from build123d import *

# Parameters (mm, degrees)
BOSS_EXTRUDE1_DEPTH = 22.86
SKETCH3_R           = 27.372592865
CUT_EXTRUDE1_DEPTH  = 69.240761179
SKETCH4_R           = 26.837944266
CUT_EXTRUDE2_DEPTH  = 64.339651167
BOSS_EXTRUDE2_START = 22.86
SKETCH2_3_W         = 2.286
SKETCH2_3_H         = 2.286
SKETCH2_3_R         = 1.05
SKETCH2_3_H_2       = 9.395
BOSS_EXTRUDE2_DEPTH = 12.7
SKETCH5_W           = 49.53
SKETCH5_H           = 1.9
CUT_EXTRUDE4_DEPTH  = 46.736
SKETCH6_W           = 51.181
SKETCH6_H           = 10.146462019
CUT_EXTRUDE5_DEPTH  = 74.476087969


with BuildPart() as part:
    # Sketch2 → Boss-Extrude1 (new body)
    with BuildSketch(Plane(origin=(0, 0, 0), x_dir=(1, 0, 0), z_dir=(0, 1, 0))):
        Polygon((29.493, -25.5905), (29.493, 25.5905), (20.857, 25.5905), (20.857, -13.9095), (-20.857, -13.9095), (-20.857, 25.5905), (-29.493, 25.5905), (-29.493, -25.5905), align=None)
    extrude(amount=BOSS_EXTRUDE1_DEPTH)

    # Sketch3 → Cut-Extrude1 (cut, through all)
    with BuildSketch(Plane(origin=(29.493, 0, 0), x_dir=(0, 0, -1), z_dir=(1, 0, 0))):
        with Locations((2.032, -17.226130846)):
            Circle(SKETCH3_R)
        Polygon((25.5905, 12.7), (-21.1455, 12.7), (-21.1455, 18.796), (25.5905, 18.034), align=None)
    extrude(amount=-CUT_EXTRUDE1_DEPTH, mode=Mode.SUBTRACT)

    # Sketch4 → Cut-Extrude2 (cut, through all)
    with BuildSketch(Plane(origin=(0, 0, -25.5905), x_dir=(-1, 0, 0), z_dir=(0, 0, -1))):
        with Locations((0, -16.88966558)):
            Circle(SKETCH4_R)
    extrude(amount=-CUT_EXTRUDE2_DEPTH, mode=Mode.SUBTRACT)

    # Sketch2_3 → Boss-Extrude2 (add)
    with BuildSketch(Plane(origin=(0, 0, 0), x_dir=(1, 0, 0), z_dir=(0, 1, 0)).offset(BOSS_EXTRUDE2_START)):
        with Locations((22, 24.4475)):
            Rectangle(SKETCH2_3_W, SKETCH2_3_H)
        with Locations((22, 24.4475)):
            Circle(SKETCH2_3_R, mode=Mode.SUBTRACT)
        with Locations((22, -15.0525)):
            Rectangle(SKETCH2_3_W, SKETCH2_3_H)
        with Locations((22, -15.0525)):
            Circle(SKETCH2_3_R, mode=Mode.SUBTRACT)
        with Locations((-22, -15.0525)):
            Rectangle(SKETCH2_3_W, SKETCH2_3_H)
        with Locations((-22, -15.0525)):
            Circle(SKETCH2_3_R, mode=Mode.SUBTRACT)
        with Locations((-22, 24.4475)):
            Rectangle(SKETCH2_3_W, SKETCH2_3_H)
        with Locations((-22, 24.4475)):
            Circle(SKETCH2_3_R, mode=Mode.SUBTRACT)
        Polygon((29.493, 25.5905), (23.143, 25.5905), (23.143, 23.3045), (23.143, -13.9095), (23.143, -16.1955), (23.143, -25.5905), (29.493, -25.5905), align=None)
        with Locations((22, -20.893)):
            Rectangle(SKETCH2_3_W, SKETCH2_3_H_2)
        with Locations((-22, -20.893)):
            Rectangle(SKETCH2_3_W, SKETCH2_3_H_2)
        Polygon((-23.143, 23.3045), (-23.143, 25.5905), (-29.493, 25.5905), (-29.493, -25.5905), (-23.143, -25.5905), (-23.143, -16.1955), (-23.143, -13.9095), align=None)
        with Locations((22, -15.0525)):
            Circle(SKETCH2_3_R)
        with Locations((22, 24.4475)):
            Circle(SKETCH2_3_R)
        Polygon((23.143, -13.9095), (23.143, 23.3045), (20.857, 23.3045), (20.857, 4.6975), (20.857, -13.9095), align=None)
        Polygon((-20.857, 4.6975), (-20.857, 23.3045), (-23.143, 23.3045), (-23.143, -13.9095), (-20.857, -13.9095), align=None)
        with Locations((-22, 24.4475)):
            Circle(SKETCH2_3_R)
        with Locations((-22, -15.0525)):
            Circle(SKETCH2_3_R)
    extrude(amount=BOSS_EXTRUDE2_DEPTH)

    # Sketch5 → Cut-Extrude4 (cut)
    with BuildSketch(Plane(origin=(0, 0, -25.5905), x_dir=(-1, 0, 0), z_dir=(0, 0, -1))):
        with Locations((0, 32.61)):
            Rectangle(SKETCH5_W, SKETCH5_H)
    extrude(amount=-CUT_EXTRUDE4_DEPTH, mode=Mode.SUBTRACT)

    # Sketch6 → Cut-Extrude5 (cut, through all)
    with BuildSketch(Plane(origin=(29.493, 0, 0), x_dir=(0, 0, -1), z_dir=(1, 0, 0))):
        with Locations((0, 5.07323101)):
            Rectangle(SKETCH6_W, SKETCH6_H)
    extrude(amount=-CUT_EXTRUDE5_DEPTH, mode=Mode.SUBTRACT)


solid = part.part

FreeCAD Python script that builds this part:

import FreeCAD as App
import Part
import Sketcher
from FreeCAD import Vector
Q = App.Units.Quantity


def add_polygon(sketch, points):
    """Adds a closed chain of lines whose ends are joined by coincident constraints."""
    first, n = sketch.GeometryCount, len(points)
    for a, b in zip(points, points[1:] + points[:1]):
        sketch.addGeometry(Part.LineSegment(App.Vector(*a, 0), App.Vector(*b, 0)), False)
    for i in range(n):
        sketch.addConstraint(Sketcher.Constraint("Coincident", first + i, 2, first + (i + 1) % n, 1))

doc = App.newDocument("Part")
body = doc.addObject("PartDesign::Body", "Body")

sketch1 = body.newObject("Sketcher::SketchObject", "Sketch")
sketch1.AttachmentSupport = (doc.getObject("XZ_Plane"), [""])
sketch1.MapMode = "FlatFace"
add_polygon(sketch1, [(29, 26), (29, -26), (21, -26), (21, 14), (-21, 14), (-21, -26), (-29, -26), (-29, 26)])
sketch1.addConstraint(Sketcher.Constraint("Vertical", 0))
sketch1.addConstraint(Sketcher.Constraint("Horizontal", 1))
sketch1.addConstraint(Sketcher.Constraint("Vertical", 2))
sketch1.addConstraint(Sketcher.Constraint("Horizontal", 3))
sketch1.addConstraint(Sketcher.Constraint("Vertical", 4))
sketch1.addConstraint(Sketcher.Constraint("Horizontal", 5))
sketch1.addConstraint(Sketcher.Constraint("Vertical", 6))
sketch1.addConstraint(Sketcher.Constraint("Horizontal", 7))
sketch1.addConstraint(Sketcher.Constraint("Symmetric", 0, 2, 6, 2, -1, 1))
sketch1.addConstraint(Sketcher.Constraint("Symmetric", 1, 2, 4, 2, -2))
sketch1.addConstraint(Sketcher.Constraint("DistanceX", 1, 2, 1, 1, Q("0.34 in")))
sketch1.addConstraint(Sketcher.Constraint("DistanceY", 0, 2, 0, 1, Q("2.015 in")))
sketch1.addConstraint(Sketcher.Constraint("DistanceX", 3, 2, 3, 1, Q("41.714 mm")))
sketch1.addConstraint(Sketcher.Constraint("DistanceY", 2, 1, 2, 2, Q("39.5 mm")))
pad1 = body.newObject("PartDesign::Pad", "Pad")
pad1.Profile = sketch1
pad1.Length = Q("0.9 in")
pad1.Reversed = True

sketch2 = body.newObject("Sketcher::SketchObject", "Sketch001")
sketch2.AttachmentSupport = (doc.getObject("YZ_Plane"), [""])
sketch2.MapMode = "FlatFace"
sketch2.AttachmentOffset = App.Placement(Vector(0, 0, 29.493), App.Rotation())
sketch2.addGeometry(Part.Circle(Vector(-17, -2, 0), Vector(0, 0, 1), 27), False)
add_polygon(sketch2, [(13, 21), (13, -26), (18, -26), (19, 21)])
sketch2.addConstraint(Sketcher.Constraint("Vertical", 1))
sketch2.addConstraint(Sketcher.Constraint("Horizontal", 2))
sketch2.addConstraint(Sketcher.Constraint("Horizontal", 4))
sketch2.addConstraint(Sketcher.Constraint("DistanceX", 2, 1, 2, 2, Q("0.21 in")))
sketch2.addConstraint(Sketcher.Constraint("DistanceX", 4, 2, 4, 1, Q("0.24 in")))
sketch2.addConstraint(Sketcher.Constraint("DistanceY", 1, 2, 1, 1, Q("1.84 in")))
sketch2.addConstraint(Sketcher.Constraint("DistanceX", -1, 1, 1, 2, Q("0.5 in")))
sketch2.addConstraint(Sketcher.Constraint("DistanceY", 0, 3, -1, 1, Q("0.08 in")))
sketch2.addConstraint(Sketcher.Constraint("Diameter", 0, Q("54.745186 mm")))
sketch2.addConstraint(Sketcher.Constraint("DistanceY", 1, 2, -1, 1, Q("1.0075 in")))
sketch2.addConstraint(Sketcher.Constraint("DistanceX", 0, 3, -1, 1, Q("17.226131 mm")))
pocket1 = body.newObject("PartDesign::Pocket", "Pocket")
pocket1.Profile = sketch2
pocket1.Type = "ThroughAll"

sketch3 = body.newObject("Sketcher::SketchObject", "Sketch002")
sketch3.AttachmentSupport = (doc.getObject("XY_Plane"), [""])
sketch3.MapMode = "FlatFace"
sketch3.AttachmentOffset = App.Placement(Vector(0, 0, -1.0075 * 25.4), App.Rotation())
sketch3.addGeometry(Part.Circle(Vector(0, -17, 0), Vector(0, 0, 1), 27), False)
sketch3.addConstraint(Sketcher.Constraint("PointOnObject", 0, 3, -2))
sketch3.addConstraint(Sketcher.Constraint("Diameter", 0, Q("53.675889 mm")))
sketch3.addConstraint(Sketcher.Constraint("DistanceY", 0, 3, -1, 1, Q("16.889666 mm")))
pocket2 = body.newObject("PartDesign::Pocket", "Pocket001")
pocket2.Profile = sketch3
pocket2.Type = "ThroughAll"
pocket2.Reversed = True

sketch4 = body.newObject("Sketcher::SketchObject", "Sketch003")
sketch4.AttachmentSupport = (doc.getObject("XZ_Plane"), [""])
sketch4.MapMode = "FlatFace"
sketch4.AttachmentOffset = App.Placement(Vector(0, 0, -0.9 * 25.4), App.Rotation())
add_polygon(sketch4, [(21, -26), (21, 26), (29, 26), (29, -26)])
add_polygon(sketch4, [(-21, 26), (-21, -26), (-29, -26), (-29, 26)])
sketch4.addConstraint(Sketcher.Constraint("Vertical", 0))
sketch4.addConstraint(Sketcher.Constraint("Horizontal", 1))
sketch4.addConstraint(Sketcher.Constraint("Vertical", 2))
sketch4.addConstraint(Sketcher.Constraint("Horizontal", 3))
sketch4.addConstraint(Sketcher.Constraint("Vertical", 4))
sketch4.addConstraint(Sketcher.Constraint("Horizontal", 5))
sketch4.addConstraint(Sketcher.Constraint("Vertical", 6))
sketch4.addConstraint(Sketcher.Constraint("Horizontal", 7))
sketch4.addConstraint(Sketcher.Constraint("Symmetric", 0, 2, 4, 2, -1, 1))
sketch4.addConstraint(Sketcher.Constraint("Symmetric", 2, 2, 6, 2, -1, 1))
sketch4.addConstraint(Sketcher.Constraint("Horizontal", 3, 2, 4, 2))
sketch4.addConstraint(Sketcher.Constraint("DistanceX", 1, 1, 1, 2, Q("0.34 in")))
sketch4.addConstraint(Sketcher.Constraint("DistanceY", 0, 1, 0, 2, Q("2.015 in")))
sketch4.addConstraint(Sketcher.Constraint("DistanceX", -1, 1, 0, 2, Q("20.857 mm")))
pad2 = body.newObject("PartDesign::Pad", "Pad001")
pad2.Profile = sketch4
pad2.Length = Q("0.5 in")
pad2.Reversed = True

sketch5 = body.newObject("Sketcher::SketchObject", "Sketch004")
sketch5.AttachmentSupport = (doc.getObject("XY_Plane"), [""])
sketch5.MapMode = "FlatFace"
sketch5.AttachmentOffset = App.Placement(Vector(0, 0, -1.0075 * 25.4), App.Rotation())
add_polygon(sketch5, [(24.8, 33.6), (24.8, 31.7), (-24.8, 31.7), (-24.8, 33.6)])
sketch5.addConstraint(Sketcher.Constraint("Vertical", 0))
sketch5.addConstraint(Sketcher.Constraint("Horizontal", 1))
sketch5.addConstraint(Sketcher.Constraint("Vertical", 2))
sketch5.addConstraint(Sketcher.Constraint("Horizontal", 3))
sketch5.addConstraint(Sketcher.Constraint("DistanceX", 1, 2, 1, 1, Q("1.95 in")))
sketch5.addConstraint(Sketcher.Constraint("DistanceX", -1, 1, 0, 2, Q("0.975 in")))
sketch5.addConstraint(Sketcher.Constraint("DistanceY", 0, 2, 0, 1, Q("1.9 mm")))
sketch5.addConstraint(Sketcher.Constraint("DistanceY", -1, 1, 0, 2, Q("31.66 mm")))
pocket3 = body.newObject("PartDesign::Pocket", "Pocket002")
pocket3.Profile = sketch5
pocket3.Length = Q("1.84 in")
pocket3.Reversed = True

sketch6 = body.newObject("Sketcher::SketchObject", "Sketch005")
sketch6.AttachmentSupport = (doc.getObject("YZ_Plane"), [""])
sketch6.MapMode = "FlatFace"
sketch6.AttachmentOffset = App.Placement(Vector(0, 0, 29.493), App.Rotation())
add_polygon(sketch6, [(10, 26), (0, 26), (0, -26), (10, -26)])
sketch6.addConstraint(Sketcher.Constraint("Horizontal", 0))
sketch6.addConstraint(Sketcher.Constraint("Vertical", 1))
sketch6.addConstraint(Sketcher.Constraint("Horizontal", 2))
sketch6.addConstraint(Sketcher.Constraint("Vertical", 3))
sketch6.addConstraint(Sketcher.Constraint("Symmetric", 0, 2, 1, 2, -1, 1))
sketch6.addConstraint(Sketcher.Constraint("DistanceY", 1, 2, 1, 1, Q("2.015 in")))
sketch6.addConstraint(Sketcher.Constraint("DistanceX", 0, 2, 0, 1, Q("10.146462 mm")))
pocket4 = body.newObject("PartDesign::Pocket", "Pocket003")
pocket4.Profile = sketch6
pocket4.Type = "ThroughAll"

doc.recompute()
